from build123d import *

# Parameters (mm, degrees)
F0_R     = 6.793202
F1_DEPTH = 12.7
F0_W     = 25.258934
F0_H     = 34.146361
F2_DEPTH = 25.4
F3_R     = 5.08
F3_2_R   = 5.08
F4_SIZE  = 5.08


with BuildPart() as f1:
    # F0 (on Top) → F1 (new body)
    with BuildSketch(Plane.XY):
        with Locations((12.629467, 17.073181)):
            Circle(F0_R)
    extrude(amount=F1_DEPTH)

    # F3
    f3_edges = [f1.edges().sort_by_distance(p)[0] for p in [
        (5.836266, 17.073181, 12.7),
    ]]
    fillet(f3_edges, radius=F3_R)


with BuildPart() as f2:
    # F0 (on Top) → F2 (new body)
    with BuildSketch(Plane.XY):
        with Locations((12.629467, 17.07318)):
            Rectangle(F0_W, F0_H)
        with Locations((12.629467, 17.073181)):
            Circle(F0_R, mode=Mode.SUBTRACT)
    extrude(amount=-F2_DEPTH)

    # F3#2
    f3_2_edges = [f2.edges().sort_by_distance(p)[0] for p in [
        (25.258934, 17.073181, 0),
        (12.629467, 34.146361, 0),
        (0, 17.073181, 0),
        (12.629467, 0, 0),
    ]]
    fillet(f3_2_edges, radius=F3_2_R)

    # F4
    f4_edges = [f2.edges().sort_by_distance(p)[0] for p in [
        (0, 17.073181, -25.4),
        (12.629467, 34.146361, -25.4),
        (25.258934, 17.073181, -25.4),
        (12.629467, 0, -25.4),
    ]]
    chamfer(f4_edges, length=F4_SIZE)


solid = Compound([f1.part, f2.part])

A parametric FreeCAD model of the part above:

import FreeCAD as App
import Part
import Sketcher


def edges_at(feature, points):
    """Names of the edges that pass closest to the given points."""
    edges = feature.Shape.Edges
    near = lambda p: min(range(len(edges)), key=lambda i: edges[i].distToShape(Part.Vertex(*p))[0])
    return sorted({f"Edge{near(p) + 1}" for p in points})

doc = App.newDocument("Part")
params = doc.addObject("Spreadsheet::Sheet", "Params")
for row, (alias, value) in enumerate([
    ("pad1_length", "0.5 in"),
    ("fillet_radius", "0.2 in"),
    ("pad2_length", "1 in"),
    ("fillet2_radius", "0.2 in"),
    ("chamfer_size", "0.2 in"),
], start=1):
    params.set(f"A{row}", alias)
    params.set(f"B{row}", "=" + value)
    params.setAlias(f"B{row}", alias)

body = doc.addObject("PartDesign::Body", "Body")

# Sketch on XY plane
sketch1 = doc.addObject("Sketcher::SketchObject", "Sketch")
body.addObject(sketch1)
sketch1.AttachmentSupport = (doc.XY_Plane, [""])
sketch1.MapMode = "FlatFace"
sketch1.addGeometry(Part.Circle(App.Vector(13, 17, 0), App.Vector(0, 0, 1), 7), False)
sketch1.addConstraint(Sketcher.Constraint("Diameter", 0, 13.586404))
sketch1.addConstraint(Sketcher.Constraint("DistanceY", -1, 1, 0, 3, 17.073181))
sketch1.addConstraint(Sketcher.Constraint("DistanceX", -1, 1, 0, 3, 12.629467))
pad1 = doc.addObject("PartDesign::Pad", "Pad")
body.addObject(pad1)
pad1.Profile = sketch1
pad1.setExpression("Length", "Params.pad1_length")
doc.recompute()

fillet = doc.addObject("PartDesign::Fillet", "Fillet")
body.addObject(fillet)
fillet.Base = (pad1, edges_at(pad1, [(5.836, 17.073, 12.7)]))
fillet.setExpression("Radius", "Params.fillet_radius")
body2 = doc.addObject("PartDesign::Body", "Body001")

# Sketch on XY plane
sketch2 = doc.addObject("Sketcher::SketchObject", "Sketch001")
body2.addObject(sketch2)
sketch2.AttachmentSupport = (doc.getObject("XY_Plane001"), [""])
sketch2.MapMode = "FlatFace"
sketch2.addGeometry(Part.LineSegment(App.Vector(0, 34, 0), App.Vector(0, 0, 0)), False)
sketch2.addGeometry(Part.LineSegment(App.Vector(0, 0, 0), App.Vector(25, 0, 0)), False)
sketch2.addGeometry(Part.LineSegment(App.Vector(25, 0, 0), App.Vector(25, 34, 0)), False)
sketch2.addGeometry(Part.LineSegment(App.Vector(25, 34, 0), App.Vector(0, 34, 0)), False)
sketch2.addGeometry(Part.Circle(App.Vector(13, 17, 0), App.Vector(0, 0, 1), 7), False)
sketch2.addConstraint(Sketcher.Constraint("Coincident", 0, 2, 1, 1))
sketch2.addConstraint(Sketcher.Constraint("Coincident", 1, 2, 2, 1))
sketch2.addConstraint(Sketcher.Constraint("Coincident", 2, 2, 3, 1))
sketch2.addConstraint(Sketcher.Constraint("Coincident", 3, 2, 0, 1))
sketch2.addConstraint(Sketcher.Constraint("Vertical", 0))
sketch2.addConstraint(Sketcher.Constraint("Horizontal", 1))
sketch2.addConstraint(Sketcher.Constraint("Vertical", 2))
sketch2.addConstraint(Sketcher.Constraint("Horizontal", 3))
sketch2.addConstraint(Sketcher.Constraint("Coincident", 0, 2, -1, 1))
sketch2.addConstraint(Sketcher.Constraint("Diameter", 4, 13.586404))
sketch2.addConstraint(Sketcher.Constraint("DistanceY", 0, 2, 0, 1, 34.146361))
sketch2.addConstraint(Sketcher.Constraint("DistanceX", 1, 1, 1, 2, 25.258934))
sketch2.addConstraint(Sketcher.Constraint("DistanceY", -1, 1, 4, 3, 17.073181))
sketch2.addConstraint(Sketcher.Constraint("DistanceX", -1, 1, 4, 3, 12.629467))
pad2 = doc.addObject("PartDesign::Pad", "Pad001")
body2.addObject(pad2)
pad2.Profile = sketch2
pad2.setExpression("Length", "Params.pad2_length")
pad2.Reversed = True
doc.recompute()

fillet2 = doc.addObject("PartDesign::Fillet", "Fillet001")
body2.addObject(fillet2)
fillet2.Base = (pad2, edges_at(pad2, [
    (25.259, 17.073, 0),
    (12.629, 34.146, 0),
    (0, 17.073, 0),
    (12.629, 0, 0),
]))
fillet2.setExpression("Radius", "Params.fillet2_radius")
doc.recompute()

chamfer = doc.addObject("PartDesign::Chamfer", "Chamfer")
body2.addObject(chamfer)
chamfer.Base = (fillet2, edges_at(fillet2, [
    (0, 17.073, -25.4),
    (12.629, 34.146, -25.4),
    (25.259, 17.073, -25.4),
    (12.629, 0, -25.4),
]))
chamfer.setExpression("Size", "Params.chamfer_size")

doc.recompute()
